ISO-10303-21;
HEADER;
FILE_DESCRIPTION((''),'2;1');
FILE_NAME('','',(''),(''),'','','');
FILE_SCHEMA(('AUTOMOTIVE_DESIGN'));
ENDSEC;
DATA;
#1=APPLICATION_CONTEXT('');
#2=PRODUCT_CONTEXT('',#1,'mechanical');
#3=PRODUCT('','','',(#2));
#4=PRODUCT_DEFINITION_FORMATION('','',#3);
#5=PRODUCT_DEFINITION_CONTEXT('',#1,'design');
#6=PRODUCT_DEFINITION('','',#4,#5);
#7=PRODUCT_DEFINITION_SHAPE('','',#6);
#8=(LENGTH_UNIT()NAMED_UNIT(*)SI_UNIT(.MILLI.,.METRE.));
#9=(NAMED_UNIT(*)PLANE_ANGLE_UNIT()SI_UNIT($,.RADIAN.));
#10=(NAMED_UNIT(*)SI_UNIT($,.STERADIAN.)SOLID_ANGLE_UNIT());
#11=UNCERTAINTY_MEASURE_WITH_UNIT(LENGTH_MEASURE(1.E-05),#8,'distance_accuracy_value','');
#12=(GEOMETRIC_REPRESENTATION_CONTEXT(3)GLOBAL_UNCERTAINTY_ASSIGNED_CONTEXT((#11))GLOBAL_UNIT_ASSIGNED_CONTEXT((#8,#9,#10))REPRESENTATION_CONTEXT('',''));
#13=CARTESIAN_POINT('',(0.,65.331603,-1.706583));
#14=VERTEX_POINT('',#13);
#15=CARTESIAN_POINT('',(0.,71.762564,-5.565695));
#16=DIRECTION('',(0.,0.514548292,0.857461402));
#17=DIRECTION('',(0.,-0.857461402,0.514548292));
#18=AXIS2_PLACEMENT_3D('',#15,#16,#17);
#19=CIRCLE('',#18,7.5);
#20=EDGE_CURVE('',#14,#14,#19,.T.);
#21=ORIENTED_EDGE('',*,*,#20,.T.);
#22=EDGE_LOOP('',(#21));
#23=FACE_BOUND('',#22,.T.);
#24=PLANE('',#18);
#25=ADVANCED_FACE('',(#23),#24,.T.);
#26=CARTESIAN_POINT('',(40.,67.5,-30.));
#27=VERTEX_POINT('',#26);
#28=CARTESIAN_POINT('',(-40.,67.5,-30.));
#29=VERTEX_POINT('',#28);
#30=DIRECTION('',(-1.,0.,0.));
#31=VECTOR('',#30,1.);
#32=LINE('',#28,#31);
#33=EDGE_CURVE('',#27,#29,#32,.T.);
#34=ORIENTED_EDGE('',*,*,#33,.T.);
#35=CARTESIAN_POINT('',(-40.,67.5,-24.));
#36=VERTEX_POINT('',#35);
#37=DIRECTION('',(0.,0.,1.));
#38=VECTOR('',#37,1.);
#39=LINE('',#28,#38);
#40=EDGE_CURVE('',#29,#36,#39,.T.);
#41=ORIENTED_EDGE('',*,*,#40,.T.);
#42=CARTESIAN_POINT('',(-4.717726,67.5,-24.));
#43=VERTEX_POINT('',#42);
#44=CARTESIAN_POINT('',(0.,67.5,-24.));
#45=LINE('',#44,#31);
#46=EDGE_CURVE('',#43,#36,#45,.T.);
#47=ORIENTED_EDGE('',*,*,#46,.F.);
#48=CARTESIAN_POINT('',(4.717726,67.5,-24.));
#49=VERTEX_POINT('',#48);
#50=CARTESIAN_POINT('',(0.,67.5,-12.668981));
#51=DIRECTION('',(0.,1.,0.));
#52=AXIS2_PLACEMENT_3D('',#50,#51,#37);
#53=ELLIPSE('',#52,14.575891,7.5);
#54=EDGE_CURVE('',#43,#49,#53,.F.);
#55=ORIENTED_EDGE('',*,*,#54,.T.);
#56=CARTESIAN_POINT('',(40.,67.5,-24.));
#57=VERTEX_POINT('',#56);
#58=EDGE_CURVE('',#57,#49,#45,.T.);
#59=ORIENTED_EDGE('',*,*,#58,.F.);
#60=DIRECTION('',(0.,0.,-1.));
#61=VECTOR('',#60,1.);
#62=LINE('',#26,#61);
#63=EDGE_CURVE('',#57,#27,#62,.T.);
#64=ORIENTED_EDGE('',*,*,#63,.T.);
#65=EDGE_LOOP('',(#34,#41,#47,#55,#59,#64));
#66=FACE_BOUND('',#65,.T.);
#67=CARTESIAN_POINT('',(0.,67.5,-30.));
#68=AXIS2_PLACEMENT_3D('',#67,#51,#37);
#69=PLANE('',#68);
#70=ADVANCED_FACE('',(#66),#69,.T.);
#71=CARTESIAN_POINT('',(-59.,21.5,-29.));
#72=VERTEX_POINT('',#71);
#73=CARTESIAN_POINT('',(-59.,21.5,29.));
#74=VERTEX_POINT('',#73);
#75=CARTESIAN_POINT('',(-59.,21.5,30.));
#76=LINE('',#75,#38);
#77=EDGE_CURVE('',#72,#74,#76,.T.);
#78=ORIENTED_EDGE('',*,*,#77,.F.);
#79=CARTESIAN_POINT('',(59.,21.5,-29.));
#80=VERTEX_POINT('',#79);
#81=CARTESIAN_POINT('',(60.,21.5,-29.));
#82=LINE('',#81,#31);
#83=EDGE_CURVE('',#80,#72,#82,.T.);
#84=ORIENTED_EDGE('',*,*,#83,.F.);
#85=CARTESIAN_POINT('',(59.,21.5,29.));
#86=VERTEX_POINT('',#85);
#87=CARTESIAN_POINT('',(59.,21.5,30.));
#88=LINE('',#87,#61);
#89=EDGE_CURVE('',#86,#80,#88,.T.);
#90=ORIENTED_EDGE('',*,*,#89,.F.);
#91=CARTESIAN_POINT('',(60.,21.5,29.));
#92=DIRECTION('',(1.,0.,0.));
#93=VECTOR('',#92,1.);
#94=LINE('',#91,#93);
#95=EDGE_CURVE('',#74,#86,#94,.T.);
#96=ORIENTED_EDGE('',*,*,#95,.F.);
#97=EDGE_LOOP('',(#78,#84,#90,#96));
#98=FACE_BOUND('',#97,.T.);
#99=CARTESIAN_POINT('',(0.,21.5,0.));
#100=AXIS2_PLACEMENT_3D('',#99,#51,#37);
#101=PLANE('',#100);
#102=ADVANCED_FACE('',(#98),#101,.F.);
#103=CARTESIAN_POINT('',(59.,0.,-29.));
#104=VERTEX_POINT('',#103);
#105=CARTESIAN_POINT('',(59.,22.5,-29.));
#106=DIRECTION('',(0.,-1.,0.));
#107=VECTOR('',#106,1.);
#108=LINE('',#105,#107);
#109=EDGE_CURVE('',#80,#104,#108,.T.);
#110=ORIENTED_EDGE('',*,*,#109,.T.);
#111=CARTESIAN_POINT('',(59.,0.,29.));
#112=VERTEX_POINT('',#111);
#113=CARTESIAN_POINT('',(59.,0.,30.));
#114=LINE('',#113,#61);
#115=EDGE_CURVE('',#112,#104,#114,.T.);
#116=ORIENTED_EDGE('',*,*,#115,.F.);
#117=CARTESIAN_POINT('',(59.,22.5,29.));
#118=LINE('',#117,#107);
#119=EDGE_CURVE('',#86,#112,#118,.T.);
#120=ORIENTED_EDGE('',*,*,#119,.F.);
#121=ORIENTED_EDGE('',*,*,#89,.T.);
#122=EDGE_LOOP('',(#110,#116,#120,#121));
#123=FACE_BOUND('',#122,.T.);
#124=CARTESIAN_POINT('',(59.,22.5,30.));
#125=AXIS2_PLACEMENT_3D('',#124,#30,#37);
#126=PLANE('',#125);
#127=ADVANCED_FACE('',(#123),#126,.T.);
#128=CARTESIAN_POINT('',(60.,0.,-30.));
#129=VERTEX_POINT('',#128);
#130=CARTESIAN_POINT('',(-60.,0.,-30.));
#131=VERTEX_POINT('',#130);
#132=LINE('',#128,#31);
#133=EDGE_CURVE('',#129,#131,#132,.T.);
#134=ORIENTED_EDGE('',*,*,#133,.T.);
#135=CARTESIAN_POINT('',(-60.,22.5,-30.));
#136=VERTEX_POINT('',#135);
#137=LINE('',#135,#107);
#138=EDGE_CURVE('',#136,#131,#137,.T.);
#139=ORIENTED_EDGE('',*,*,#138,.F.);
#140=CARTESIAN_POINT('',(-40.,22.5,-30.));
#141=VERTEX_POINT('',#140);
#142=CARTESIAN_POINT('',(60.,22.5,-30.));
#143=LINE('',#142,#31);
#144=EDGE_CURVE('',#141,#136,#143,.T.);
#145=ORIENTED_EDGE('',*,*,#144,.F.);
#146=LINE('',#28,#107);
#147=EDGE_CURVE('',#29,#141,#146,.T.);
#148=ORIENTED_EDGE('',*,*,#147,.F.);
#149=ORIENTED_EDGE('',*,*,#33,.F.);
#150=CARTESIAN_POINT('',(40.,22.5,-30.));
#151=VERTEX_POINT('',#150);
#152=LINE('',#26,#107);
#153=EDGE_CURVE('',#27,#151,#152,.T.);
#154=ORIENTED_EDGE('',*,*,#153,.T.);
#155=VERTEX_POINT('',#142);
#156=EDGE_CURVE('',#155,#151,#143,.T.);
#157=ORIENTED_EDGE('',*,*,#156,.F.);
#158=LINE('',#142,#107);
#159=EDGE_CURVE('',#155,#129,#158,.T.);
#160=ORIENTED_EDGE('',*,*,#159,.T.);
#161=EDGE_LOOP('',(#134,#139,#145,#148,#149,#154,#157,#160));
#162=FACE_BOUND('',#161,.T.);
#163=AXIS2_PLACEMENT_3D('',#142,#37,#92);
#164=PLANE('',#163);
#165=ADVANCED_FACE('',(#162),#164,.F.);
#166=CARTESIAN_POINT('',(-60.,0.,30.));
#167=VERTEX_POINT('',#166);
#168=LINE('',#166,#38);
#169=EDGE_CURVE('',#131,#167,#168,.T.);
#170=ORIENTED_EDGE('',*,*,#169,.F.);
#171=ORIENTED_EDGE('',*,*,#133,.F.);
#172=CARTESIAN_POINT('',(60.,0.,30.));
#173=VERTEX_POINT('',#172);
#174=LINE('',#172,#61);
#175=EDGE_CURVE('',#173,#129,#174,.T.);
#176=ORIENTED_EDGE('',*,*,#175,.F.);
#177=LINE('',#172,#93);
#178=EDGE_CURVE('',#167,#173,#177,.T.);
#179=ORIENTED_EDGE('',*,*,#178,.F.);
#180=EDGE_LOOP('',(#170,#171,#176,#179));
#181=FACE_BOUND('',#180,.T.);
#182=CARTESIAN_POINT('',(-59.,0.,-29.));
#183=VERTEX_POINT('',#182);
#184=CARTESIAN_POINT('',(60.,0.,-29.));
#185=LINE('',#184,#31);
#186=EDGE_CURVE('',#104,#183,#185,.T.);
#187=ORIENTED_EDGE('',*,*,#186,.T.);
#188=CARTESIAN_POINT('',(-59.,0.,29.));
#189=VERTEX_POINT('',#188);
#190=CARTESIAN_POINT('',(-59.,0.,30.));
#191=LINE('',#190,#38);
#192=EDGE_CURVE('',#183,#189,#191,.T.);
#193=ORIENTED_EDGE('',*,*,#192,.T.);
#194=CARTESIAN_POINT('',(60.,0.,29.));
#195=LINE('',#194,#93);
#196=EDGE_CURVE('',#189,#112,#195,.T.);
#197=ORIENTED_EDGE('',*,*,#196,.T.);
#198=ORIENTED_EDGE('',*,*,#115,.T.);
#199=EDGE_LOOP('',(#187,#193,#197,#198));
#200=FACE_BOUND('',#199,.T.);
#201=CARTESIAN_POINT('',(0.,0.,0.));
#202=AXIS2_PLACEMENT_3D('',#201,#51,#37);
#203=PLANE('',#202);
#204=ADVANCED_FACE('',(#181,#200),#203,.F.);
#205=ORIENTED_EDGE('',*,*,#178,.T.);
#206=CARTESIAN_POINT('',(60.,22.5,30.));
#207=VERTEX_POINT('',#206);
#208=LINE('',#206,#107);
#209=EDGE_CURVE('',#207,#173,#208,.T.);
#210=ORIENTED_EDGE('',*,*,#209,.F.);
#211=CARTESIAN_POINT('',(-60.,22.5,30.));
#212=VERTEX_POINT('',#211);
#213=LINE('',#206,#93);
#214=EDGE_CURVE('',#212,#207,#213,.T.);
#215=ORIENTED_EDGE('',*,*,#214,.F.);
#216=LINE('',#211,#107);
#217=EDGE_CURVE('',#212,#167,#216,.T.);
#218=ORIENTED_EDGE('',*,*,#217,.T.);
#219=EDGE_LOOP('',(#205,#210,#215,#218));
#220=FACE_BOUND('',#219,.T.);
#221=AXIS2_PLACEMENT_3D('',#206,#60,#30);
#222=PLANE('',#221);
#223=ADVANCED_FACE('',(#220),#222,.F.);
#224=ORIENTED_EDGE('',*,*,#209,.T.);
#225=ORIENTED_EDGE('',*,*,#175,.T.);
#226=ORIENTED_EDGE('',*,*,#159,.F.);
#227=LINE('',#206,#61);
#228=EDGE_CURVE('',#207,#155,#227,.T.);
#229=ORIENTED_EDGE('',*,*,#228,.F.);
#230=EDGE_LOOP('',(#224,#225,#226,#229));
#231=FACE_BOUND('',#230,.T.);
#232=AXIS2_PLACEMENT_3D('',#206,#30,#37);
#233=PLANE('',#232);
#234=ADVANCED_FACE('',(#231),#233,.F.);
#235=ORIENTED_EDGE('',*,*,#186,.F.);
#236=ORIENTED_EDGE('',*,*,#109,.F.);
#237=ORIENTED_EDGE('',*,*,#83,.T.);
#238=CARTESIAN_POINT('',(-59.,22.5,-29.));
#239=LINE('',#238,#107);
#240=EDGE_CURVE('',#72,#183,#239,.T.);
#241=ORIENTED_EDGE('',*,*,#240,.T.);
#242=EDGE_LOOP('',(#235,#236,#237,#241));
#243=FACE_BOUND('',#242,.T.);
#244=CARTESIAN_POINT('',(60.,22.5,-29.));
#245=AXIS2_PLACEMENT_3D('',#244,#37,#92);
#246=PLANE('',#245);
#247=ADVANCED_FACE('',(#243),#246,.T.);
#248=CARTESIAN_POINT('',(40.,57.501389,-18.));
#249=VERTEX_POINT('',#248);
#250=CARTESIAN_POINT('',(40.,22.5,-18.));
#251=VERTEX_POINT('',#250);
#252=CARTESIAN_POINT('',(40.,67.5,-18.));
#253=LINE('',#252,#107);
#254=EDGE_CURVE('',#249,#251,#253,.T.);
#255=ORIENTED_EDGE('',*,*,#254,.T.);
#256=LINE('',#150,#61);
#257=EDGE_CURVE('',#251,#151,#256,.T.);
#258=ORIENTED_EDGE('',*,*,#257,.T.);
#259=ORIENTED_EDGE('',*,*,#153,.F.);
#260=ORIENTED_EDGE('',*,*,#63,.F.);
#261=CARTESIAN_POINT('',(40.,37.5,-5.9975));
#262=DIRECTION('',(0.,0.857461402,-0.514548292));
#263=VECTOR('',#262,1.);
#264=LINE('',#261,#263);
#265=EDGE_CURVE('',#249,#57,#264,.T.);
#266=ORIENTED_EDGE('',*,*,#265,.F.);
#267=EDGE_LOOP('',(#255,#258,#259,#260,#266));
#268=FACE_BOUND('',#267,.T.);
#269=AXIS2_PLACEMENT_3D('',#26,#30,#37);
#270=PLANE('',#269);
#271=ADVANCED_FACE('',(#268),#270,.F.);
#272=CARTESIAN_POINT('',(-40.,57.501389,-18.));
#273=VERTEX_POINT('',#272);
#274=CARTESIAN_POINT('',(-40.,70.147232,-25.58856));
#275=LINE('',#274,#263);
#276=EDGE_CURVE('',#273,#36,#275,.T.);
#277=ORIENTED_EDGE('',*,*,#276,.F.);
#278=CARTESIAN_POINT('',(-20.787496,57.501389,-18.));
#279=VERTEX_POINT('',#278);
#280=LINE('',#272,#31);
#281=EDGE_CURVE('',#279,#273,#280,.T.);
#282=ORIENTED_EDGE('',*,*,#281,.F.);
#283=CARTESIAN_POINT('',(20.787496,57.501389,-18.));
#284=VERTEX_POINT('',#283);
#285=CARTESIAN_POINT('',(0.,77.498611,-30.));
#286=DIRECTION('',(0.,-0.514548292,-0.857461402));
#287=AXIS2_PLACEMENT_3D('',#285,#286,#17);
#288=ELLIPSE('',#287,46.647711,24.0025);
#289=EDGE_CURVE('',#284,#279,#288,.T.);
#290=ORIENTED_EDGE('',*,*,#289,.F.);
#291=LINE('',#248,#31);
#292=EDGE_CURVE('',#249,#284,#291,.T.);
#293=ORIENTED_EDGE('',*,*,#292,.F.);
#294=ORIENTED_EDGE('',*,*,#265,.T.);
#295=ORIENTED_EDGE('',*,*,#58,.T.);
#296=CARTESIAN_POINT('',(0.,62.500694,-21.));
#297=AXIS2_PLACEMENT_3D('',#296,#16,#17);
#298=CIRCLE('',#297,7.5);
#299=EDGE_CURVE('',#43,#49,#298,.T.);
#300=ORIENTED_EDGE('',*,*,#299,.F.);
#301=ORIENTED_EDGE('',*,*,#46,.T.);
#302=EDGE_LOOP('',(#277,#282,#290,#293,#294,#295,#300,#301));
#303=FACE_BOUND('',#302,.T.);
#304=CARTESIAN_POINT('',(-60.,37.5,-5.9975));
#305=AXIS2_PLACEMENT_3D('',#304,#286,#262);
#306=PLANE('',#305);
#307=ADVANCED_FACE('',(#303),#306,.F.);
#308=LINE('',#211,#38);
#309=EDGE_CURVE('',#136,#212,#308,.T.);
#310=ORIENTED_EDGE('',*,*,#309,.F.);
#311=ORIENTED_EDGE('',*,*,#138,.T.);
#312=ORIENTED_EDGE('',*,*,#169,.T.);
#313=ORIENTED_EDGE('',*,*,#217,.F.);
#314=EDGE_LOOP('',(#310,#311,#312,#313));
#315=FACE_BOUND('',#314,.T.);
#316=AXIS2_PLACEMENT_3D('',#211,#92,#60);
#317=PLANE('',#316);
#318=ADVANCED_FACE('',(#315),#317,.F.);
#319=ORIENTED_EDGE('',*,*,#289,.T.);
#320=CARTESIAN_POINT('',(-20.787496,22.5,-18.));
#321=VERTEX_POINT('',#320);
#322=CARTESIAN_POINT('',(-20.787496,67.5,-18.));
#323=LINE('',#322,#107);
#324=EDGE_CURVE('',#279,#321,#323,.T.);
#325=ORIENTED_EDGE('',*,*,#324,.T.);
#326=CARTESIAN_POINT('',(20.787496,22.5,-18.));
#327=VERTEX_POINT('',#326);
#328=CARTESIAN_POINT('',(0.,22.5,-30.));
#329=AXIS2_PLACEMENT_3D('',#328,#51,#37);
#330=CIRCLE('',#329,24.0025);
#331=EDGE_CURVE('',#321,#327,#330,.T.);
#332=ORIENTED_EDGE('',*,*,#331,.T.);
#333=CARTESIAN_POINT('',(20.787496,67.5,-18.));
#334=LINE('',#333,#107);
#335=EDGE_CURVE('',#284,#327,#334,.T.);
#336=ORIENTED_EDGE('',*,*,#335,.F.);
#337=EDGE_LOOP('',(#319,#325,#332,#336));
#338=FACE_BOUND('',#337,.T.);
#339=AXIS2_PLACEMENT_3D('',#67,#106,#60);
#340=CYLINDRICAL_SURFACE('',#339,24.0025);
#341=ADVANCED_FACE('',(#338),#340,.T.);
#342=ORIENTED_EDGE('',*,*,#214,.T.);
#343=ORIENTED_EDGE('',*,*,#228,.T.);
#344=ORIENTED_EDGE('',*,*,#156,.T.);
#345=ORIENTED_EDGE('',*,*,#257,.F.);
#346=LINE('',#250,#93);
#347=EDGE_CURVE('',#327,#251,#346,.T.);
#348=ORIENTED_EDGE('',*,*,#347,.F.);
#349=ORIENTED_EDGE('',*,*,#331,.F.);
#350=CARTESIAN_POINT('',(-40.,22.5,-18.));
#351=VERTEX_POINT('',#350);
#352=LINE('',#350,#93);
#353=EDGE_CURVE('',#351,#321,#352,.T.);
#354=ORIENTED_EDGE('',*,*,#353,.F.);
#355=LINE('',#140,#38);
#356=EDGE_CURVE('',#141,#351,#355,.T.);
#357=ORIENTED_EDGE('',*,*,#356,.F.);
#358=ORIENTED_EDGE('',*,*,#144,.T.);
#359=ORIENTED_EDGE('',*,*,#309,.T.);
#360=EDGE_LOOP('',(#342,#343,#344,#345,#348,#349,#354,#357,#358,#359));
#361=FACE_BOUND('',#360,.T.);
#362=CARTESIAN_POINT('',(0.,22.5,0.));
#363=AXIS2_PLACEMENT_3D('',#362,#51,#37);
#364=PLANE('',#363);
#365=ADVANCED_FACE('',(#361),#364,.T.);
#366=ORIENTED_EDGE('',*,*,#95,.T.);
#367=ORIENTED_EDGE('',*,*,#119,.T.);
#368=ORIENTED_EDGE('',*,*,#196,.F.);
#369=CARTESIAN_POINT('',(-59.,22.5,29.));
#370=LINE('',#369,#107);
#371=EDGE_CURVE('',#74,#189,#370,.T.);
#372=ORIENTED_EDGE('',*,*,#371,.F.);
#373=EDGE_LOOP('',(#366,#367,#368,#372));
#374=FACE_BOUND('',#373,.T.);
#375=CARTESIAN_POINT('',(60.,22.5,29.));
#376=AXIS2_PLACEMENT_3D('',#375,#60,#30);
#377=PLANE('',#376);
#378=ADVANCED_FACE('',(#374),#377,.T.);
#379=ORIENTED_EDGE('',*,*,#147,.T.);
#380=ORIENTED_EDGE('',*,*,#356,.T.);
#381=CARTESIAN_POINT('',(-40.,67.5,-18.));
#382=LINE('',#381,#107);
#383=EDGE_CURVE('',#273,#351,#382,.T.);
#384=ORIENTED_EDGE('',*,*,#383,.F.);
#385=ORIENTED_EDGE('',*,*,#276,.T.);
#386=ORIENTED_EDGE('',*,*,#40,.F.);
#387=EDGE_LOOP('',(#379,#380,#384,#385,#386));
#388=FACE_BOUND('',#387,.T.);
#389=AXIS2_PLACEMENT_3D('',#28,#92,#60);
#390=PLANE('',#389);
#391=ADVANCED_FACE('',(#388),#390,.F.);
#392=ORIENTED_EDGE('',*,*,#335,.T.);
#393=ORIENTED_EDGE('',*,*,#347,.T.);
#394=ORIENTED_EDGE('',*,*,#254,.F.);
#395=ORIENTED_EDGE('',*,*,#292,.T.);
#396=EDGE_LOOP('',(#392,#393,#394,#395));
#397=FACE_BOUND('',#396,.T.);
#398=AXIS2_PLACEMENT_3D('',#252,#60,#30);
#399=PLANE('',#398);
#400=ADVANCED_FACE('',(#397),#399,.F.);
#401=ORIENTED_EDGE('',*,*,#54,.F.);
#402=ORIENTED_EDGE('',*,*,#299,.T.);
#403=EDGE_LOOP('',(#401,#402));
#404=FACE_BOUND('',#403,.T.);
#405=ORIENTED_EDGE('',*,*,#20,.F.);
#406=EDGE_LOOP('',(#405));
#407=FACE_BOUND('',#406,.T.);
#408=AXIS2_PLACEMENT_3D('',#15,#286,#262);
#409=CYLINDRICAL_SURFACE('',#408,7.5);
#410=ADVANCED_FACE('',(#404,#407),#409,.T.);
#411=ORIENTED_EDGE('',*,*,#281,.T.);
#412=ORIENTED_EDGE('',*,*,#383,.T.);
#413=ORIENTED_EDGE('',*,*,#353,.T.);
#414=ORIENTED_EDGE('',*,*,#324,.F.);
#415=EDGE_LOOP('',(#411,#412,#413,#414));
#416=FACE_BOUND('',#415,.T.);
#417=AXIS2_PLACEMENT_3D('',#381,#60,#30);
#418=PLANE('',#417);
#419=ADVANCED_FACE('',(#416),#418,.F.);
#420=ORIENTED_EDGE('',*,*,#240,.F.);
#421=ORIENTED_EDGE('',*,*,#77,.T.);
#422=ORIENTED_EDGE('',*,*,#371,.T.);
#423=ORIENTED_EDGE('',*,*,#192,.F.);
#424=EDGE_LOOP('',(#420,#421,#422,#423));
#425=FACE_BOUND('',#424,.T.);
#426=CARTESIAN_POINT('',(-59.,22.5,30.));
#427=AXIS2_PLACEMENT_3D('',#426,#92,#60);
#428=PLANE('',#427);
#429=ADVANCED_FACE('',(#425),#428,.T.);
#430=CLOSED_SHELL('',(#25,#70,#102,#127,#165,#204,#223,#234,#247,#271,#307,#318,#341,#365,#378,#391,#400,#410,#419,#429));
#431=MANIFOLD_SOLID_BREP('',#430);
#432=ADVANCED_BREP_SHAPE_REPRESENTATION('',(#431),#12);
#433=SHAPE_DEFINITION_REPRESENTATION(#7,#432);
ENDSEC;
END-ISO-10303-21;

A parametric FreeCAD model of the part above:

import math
import FreeCAD as App
import Part
import Sketcher

V = App.Vector
Q = App.Units.Quantity


def faces_at(feature, points):
    """Names of the faces that lie closest to the given points."""
    faces = feature.Shape.Faces
    near = lambda p: min(range(len(faces)), key=lambda i: faces[i].distToShape(Part.Vertex(*p))[0])
    return sorted({f"Face{near(p) + 1}" for p in points})


def add_polygon(sketch, points):
    """Adds a closed chain of lines whose ends are joined by coincident constraints."""
    first, n = sketch.GeometryCount, len(points)
    for a, b in zip(points, points[1:] + points[:1]):
        sketch.addGeometry(Part.LineSegment(App.Vector(*a, 0), App.Vector(*b, 0)), False)
    for i in range(n):
        sketch.addConstraint(Sketcher.Constraint("Coincident", first + i, 2, first + (i + 1) % n, 1))

doc = App.newDocument("Part")
body = doc.addObject("PartDesign::Body", "Body")

sketch1 = body.newObject("Sketcher::SketchObject", "Sketch")
sketch1.AttachmentSupport = (doc.getObject("XZ_Plane"), [""])
sketch1.MapMode = "FlatFace"
add_polygon(sketch1, [(-60, -30), (-60, 30), (60, 30), (60, -30)])
sketch1.addConstraint([
    Sketcher.Constraint("Vertical", 0),
    Sketcher.Constraint("Horizontal", 1),
    Sketcher.Constraint("Vertical", 2),
    Sketcher.Constraint("Horizontal", 3),
    Sketcher.Constraint("Symmetric", 0, 2, 2, 2, -1, 1),
    Sketcher.Constraint("DistanceX", 1, 1, 1, 2, Q("120 mm")),
    Sketcher.Constraint("DistanceY", 0, 1, 0, 2, Q("60 mm")),
])
pad1 = body.newObject("PartDesign::Pad", "Pad")
pad1.Profile = sketch1
pad1.Length = 22.5
pad1.Reversed = True
doc.recompute()

thickness = body.newObject("PartDesign::Thickness", "Thickness")
thickness.Base = (pad1, faces_at(pad1, [(0, 0, 0)]))
thickness.Value = 1
thickness.Reversed = True
thickness.Join = "Intersection"

sketch2 = body.newObject("Sketcher::SketchObject", "Sketch001")
sketch2.AttachmentSupport = (doc.getObject("XZ_Plane"), [""])
sketch2.MapMode = "FlatFace"
sketch2.AttachmentOffset = App.Placement(V(0, 0, -22.5), App.Rotation())
sketch2.addGeometry([
    Part.LineSegment(V(40, -30, 0), V(-40, -30, 0)),
    Part.LineSegment(V(-40, -30, 0), V(-40, -18, 0)),
    Part.LineSegment(V(-40, -18, 0), V(-21, -18, 0)),
    Part.ArcOfCircle(Part.Circle(V(0, -30, 0), V(0, 0, 1), 24), math.radians(30), math.radians(150)),
    Part.LineSegment(V(21, -18, 0), V(40, -18, 0)),
    Part.LineSegment(V(40, -18, 0), V(40, -30, 0)),
], False)
sketch2.addConstraint([
    Sketcher.Constraint("Coincident", 0, 2, 1, 1),
    Sketcher.Constraint("Coincident", 1, 2, 2, 1),
    Sketcher.Constraint("Coincident", 2, 2, 3, 2),
    Sketcher.Constraint("Coincident", 3, 1, 4, 1),
    Sketcher.Constraint("Coincident", 4, 2, 5, 1),
    Sketcher.Constraint("Coincident", 5, 2, 0, 1),
    Sketcher.Constraint("Horizontal", 0),
    Sketcher.Constraint("Vertical", 1),
    Sketcher.Constraint("Horizontal", 2),
    Sketcher.Constraint("Horizontal", 4),
    Sketcher.Constraint("Vertical", 5),
    Sketcher.Constraint("Symmetric", 2, 2, 3, 1, -2),
    Sketcher.Constraint("Horizontal", 3, 3, 0, 2),
    Sketcher.Constraint("Equal", 2, 4),
    Sketcher.Constraint("DistanceX", 0, 2, 0, 1, Q("80 mm")),
    Sketcher.Constraint("DistanceY", 1, 1, 1, 2, Q("12 mm")),
    Sketcher.Constraint("DistanceY", 3, 3, -1, 1, Q("30 mm")),
    Sketcher.Constraint("Radius", 3, Q("24.0025 mm")),
])
pad2 = body.newObject("PartDesign::Pad", "Pad001")
pad2.Profile = sketch2
pad2.Length = 45
pad2.Reversed = True

sketch3 = body.newObject("Sketcher::SketchObject", "Sketch002")
sketch3.AttachmentSupport = (doc.getObject("YZ_Plane"), [""])
sketch3.MapMode = "FlatFace"
sketch3.AttachmentOffset = App.Placement(V(0, 0, 40), App.Rotation())
add_polygon(sketch3, [(68, -24), (68, -6), (38, -6)])
sketch3.addConstraint([
    Sketcher.Constraint("Vertical", 0),
    Sketcher.Constraint("Horizontal", 1),
    Sketcher.Constraint("DistanceX", 1, 2, 1, 1, Q("30 mm")),
    Sketcher.Constraint("DistanceY", 2, 2, -1, 1, Q("24 mm")),
    Sketcher.Constraint("DistanceX", -1, 1, 0, 2, Q("67.5 mm")),
    Sketcher.Constraint("DistanceY", 0, 1, 0, 2, Q("18.0025 mm")),
])
pocket1 = body.newObject("PartDesign::Pocket", "Pocket")
pocket1.Profile = sketch3
pocket1.Type = "ThroughAll"

sketch4 = body.newObject("Sketcher::SketchObject", "Sketch003")
sketch4.Placement = App.Placement(V(0, 7.282369, 12.135596), App.Rotation(V(1, 0, 0), V(0, 0.857461402, -0.514548292), V(0, 0.514548292, 0.857461402), "ZXY"))
sketch4.addGeometry(Part.Circle(V(0, 64, 0), V(0, 0, 1), 8), False)
sketch4.addConstraint([
    Sketcher.Constraint("PointOnObject", 0, 3, -2),
    Sketcher.Constraint("Diameter", 0, Q("15 mm")),
    Sketcher.Constraint("DistanceY", -1, 1, 0, 3, Q("64.397447 mm")),
])
pad3 = body.newObject("PartDesign::Pad", "Pad002")
pad3.Profile = sketch4
pad3.Type = "UpToFirst"
pad3.Reversed = True

sketch5 = body.newObject("Sketcher::SketchObject", "Sketch004")
sketch5.Placement = App.Placement(V(0, 7.282369, 12.135596), App.Rotation(V(1, 0, 0), V(0, 0.857461402, -0.514548292), V(0, 0.514548292, 0.857461402), "ZXY"))
sketch5.addGeometry(Part.Circle(V(0, 64, 0), V(0, 0, 1), 8), False)
sketch5.addConstraint([
    Sketcher.Constraint("PointOnObject", 0, 3, -2),
    Sketcher.Constraint("Diameter", 0, Q("15 mm")),
    Sketcher.Constraint("DistanceY", -1, 1, 0, 3, Q("64.397447 mm")),
])
pad4 = body.newObject("PartDesign::Pad", "Pad003")
pad4.Profile = sketch5
pad4.Length = 18

doc.recompute()
